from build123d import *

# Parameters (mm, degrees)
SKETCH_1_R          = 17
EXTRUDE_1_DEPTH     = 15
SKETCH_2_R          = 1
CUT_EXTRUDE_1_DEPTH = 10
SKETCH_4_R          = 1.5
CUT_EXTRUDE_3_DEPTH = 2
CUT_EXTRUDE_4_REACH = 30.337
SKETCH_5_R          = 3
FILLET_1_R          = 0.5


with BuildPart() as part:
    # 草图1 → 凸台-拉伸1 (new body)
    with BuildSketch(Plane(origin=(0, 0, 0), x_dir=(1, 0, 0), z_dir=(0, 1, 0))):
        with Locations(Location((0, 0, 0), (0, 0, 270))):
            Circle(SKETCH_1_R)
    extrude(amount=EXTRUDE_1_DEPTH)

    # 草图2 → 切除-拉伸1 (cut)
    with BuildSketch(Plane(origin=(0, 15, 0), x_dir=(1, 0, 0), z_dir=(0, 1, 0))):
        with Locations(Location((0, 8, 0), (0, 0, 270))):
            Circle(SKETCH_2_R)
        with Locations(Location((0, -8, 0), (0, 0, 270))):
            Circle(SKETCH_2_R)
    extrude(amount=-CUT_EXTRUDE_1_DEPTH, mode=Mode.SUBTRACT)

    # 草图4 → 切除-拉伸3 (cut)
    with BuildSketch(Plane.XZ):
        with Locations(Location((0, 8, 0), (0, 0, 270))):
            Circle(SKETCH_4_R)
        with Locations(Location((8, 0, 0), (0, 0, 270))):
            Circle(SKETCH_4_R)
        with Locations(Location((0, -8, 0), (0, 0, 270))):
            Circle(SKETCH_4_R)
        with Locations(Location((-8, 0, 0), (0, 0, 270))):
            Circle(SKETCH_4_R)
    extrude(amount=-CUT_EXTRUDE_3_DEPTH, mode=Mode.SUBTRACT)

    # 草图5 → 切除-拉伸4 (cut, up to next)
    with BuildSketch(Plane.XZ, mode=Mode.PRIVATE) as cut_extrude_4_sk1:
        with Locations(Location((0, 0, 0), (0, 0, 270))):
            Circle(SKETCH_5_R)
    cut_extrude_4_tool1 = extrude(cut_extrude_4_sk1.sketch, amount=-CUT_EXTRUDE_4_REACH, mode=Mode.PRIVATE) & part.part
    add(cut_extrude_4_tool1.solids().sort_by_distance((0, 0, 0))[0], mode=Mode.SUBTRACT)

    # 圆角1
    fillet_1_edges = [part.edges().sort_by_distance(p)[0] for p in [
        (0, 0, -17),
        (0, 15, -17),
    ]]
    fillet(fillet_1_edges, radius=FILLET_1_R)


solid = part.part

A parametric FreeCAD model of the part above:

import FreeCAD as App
import Part
import Sketcher


def edges_at(feature, points):
    """Names of the edges that pass closest to the given points."""
    edges = feature.Shape.Edges
    near = lambda p: min(range(len(edges)), key=lambda i: edges[i].distToShape(Part.Vertex(*p))[0])
    return sorted({f"Edge{near(p) + 1}" for p in points})

doc = App.newDocument("Part")
body = doc.addObject("PartDesign::Body", "Body")

# Sketch on XZ plane
sketch1 = doc.addObject("Sketcher::SketchObject", "Sketch")
body.addObject(sketch1)
sketch1.AttachmentSupport = (doc.XZ_Plane, [""])
sketch1.MapMode = "FlatFace"
sketch1.addGeometry(Part.Circle(App.Vector(0, 0, 0), App.Vector(0, 0, 1), 17), False)
sketch1.addConstraint([
    Sketcher.Constraint("Coincident", 0, 3, -1, 1),
    Sketcher.Constraint("Diameter", 0, 34.0),
])
pad1 = doc.addObject("PartDesign::Pad", "Pad")
body.addObject(pad1)
pad1.Profile = sketch1
pad1.Length = 15
pad1.Reversed = True

# Sketch on XZ plane
sketch2 = doc.addObject("Sketcher::SketchObject", "Sketch001")
body.addObject(sketch2)
sketch2.AttachmentSupport = (doc.XZ_Plane, [""])
sketch2.MapMode = "FlatFace"
sketch2.AttachmentOffset = App.Placement(App.Vector(0, 0, -15), App.Rotation())
sketch2.addGeometry([
    Part.Circle(App.Vector(0, -8, 0), App.Vector(0, 0, 1), 1),
    Part.Circle(App.Vector(0, 8, 0), App.Vector(0, 0, 1), 1),
], False)
sketch2.addConstraint([
    Sketcher.Constraint("Equal", 0, 1),
    Sketcher.Constraint("Symmetric", 0, 3, 1, 3, -1, 1),
    Sketcher.Constraint("PointOnObject", 0, 3, -2),
    Sketcher.Constraint("Diameter", 0, 2.0),
    Sketcher.Constraint("DistanceY", 0, 3, -1, 1, 8.0),
])
pocket1 = doc.addObject("PartDesign::Pocket", "Pocket")
body.addObject(pocket1)
pocket1.Profile = sketch2
pocket1.Length = 10
pocket1.Reversed = True

# Sketch on XZ plane
sketch3 = doc.addObject("Sketcher::SketchObject", "Sketch002")
body.addObject(sketch3)
sketch3.AttachmentSupport = (doc.XZ_Plane, [""])
sketch3.MapMode = "FlatFace"
sketch3.addGeometry([
    Part.Circle(App.Vector(0, 8, 0), App.Vector(0, 0, 1), 1.5),
    Part.Circle(App.Vector(8, 0, 0), App.Vector(0, 0, 1), 1.5),
    Part.Circle(App.Vector(0, -8, 0), App.Vector(0, 0, 1), 1.5),
    Part.Circle(App.Vector(-8, 0, 0), App.Vector(0, 0, 1), 1.5),
], False)
sketch3.addConstraint([
    Sketcher.Constraint("Equal", 0, 1),
    Sketcher.Constraint("Equal", 1, 2),
    Sketcher.Constraint("Equal", 2, 3),
    Sketcher.Constraint("Symmetric", 0, 3, 2, 3, -1, 1),
    Sketcher.Constraint("Symmetric", 1, 3, 3, 3, -1, 1),
    Sketcher.Constraint("PointOnObject", 0, 3, -2),
    Sketcher.Constraint("PointOnObject", 1, 3, -1),
    Sketcher.Constraint("Diameter", 0, 3.0),
    Sketcher.Constraint("DistanceY", -1, 1, 0, 3, 8.0),
    Sketcher.Constraint("DistanceX", -1, 1, 1, 3, 8.0),
])
pocket2 = doc.addObject("PartDesign::Pocket", "Pocket001")
body.addObject(pocket2)
pocket2.Profile = sketch3
pocket2.Length = 2

# Sketch on XZ plane
sketch4 = doc.addObject("Sketcher::SketchObject", "Sketch003")
body.addObject(sketch4)
sketch4.AttachmentSupport = (doc.XZ_Plane, [""])
sketch4.MapMode = "FlatFace"
sketch4.addGeometry(Part.Circle(App.Vector(0, 0, 0), App.Vector(0, 0, 1), 3), False)
sketch4.addConstraint([
    Sketcher.Constraint("Coincident", 0, 3, -1, 1),
    Sketcher.Constraint("Diameter", 0, 6.0),
])
pocket3 = doc.addObject("PartDesign::Pocket", "Pocket002")
body.addObject(pocket3)
pocket3.Profile = sketch4
pocket3.Type = "UpToFirst"
doc.recompute()

fillet = doc.addObject("PartDesign::Fillet", "Fillet")
body.addObject(fillet)
fillet.Base = (pocket3, edges_at(pocket3, [(0, 0, -17), (0, 15, -17)]))
fillet.Radius = 0.5

doc.recompute()
